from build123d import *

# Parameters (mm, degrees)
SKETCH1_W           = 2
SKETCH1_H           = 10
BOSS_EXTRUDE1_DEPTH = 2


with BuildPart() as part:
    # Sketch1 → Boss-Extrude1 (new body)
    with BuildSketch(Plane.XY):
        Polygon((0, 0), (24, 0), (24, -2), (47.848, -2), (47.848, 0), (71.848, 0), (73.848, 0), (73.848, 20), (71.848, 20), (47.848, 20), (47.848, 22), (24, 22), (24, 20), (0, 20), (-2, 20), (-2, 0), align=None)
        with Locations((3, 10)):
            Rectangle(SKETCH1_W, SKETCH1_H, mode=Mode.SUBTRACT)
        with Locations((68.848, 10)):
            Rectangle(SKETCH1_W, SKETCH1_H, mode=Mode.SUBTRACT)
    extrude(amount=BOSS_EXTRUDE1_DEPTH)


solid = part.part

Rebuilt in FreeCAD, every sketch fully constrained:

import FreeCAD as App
import Part
import Sketcher
from FreeCAD import Vector
Q = App.Units.Quantity

doc = App.newDocument("Part")
body = doc.addObject("PartDesign::Body", "Body")

sketch1 = body.newObject("Sketcher::SketchObject", "Sketch")
sketch1.AttachmentSupport = (doc.getObject("XY_Plane"), [""])
sketch1.MapMode = "FlatFace"
sketch1.addGeometry([
    Part.LineSegment(Vector(24, 0, 0), Vector(24, -2, 0)),
    Part.LineSegment(Vector(24, -2, 0), Vector(47.8, -2, 0)),
    Part.LineSegment(Vector(47.8, -2, 0), Vector(47.8, 0, 0)),
    Part.LineSegment(Vector(47.8, 0, 0), Vector(73.8, 0, 0)),
    Part.LineSegment(Vector(73.8, 0, 0), Vector(73.8, 20, 0)),
    Part.LineSegment(Vector(73.8, 20, 0), Vector(47.8, 20, 0)),
    Part.LineSegment(Vector(47.8, 20, 0), Vector(47.8, 22, 0)),
    Part.LineSegment(Vector(47.8, 22, 0), Vector(24, 22, 0)),
    Part.LineSegment(Vector(24, 22, 0), Vector(24, 20, 0)),
    Part.LineSegment(Vector(24, 20, 0), Vector(-2, 20, 0)),
    Part.LineSegment(Vector(-2, 20, 0), Vector(-2, 0, 0)),
    Part.LineSegment(Vector(-2, 0, 0), Vector(24, 0, 0)),
    Part.LineSegment(Vector(4, 5, 0), Vector(2, 5, 0)),
    Part.LineSegment(Vector(2, 5, 0), Vector(2, 15, 0)),
    Part.LineSegment(Vector(2, 15, 0), Vector(4, 15, 0)),
    Part.LineSegment(Vector(4, 15, 0), Vector(4, 5, 0)),
    Part.LineSegment(Vector(69.8, 5, 0), Vector(67.8, 5, 0)),
    Part.LineSegment(Vector(67.8, 5, 0), Vector(67.8, 15, 0)),
    Part.LineSegment(Vector(67.8, 15, 0), Vector(69.8, 15, 0)),
    Part.LineSegment(Vector(69.8, 15, 0), Vector(69.8, 5, 0)),
], False)
sketch1.addConstraint([
    Sketcher.Constraint("Coincident", 0, 2, 1, 1),
    Sketcher.Constraint("Coincident", 1, 2, 2, 1),
    Sketcher.Constraint("Coincident", 2, 2, 3, 1),
    Sketcher.Constraint("Coincident", 3, 2, 4, 1),
    Sketcher.Constraint("Coincident", 4, 2, 5, 1),
    Sketcher.Constraint("Coincident", 5, 2, 6, 1),
    Sketcher.Constraint("Coincident", 6, 2, 7, 1),
    Sketcher.Constraint("Coincident", 7, 2, 8, 1),
    Sketcher.Constraint("Coincident", 8, 2, 9, 1),
    Sketcher.Constraint("Coincident", 9, 2, 10, 1),
    Sketcher.Constraint("Coincident", 10, 2, 11, 1),
    Sketcher.Constraint("Coincident", 11, 2, 0, 1),
    Sketcher.Constraint("Coincident", 12, 2, 13, 1),
    Sketcher.Constraint("Coincident", 13, 2, 14, 1),
    Sketcher.Constraint("Coincident", 14, 2, 15, 1),
    Sketcher.Constraint("Coincident", 15, 2, 12, 1),
    Sketcher.Constraint("Coincident", 16, 2, 17, 1),
    Sketcher.Constraint("Coincident", 17, 2, 18, 1),
    Sketcher.Constraint("Coincident", 18, 2, 19, 1),
    Sketcher.Constraint("Coincident", 19, 2, 16, 1),
    Sketcher.Constraint("Vertical", 0),
    Sketcher.Constraint("Horizontal", 1),
    Sketcher.Constraint("Vertical", 2),
    Sketcher.Constraint("Horizontal", 3),
    Sketcher.Constraint("Vertical", 4),
    Sketcher.Constraint("Horizontal", 5),
    Sketcher.Constraint("Vertical", 6),
    Sketcher.Constraint("Horizontal", 7),
    Sketcher.Constraint("Vertical", 8),
    Sketcher.Constraint("Horizontal", 9),
    Sketcher.Constraint("Vertical", 10),
    Sketcher.Constraint("Horizontal", 11),
    Sketcher.Constraint("Horizontal", 12),
    Sketcher.Constraint("Vertical", 13),
    Sketcher.Constraint("Horizontal", 14),
    Sketcher.Constraint("Vertical", 15),
    Sketcher.Constraint("Horizontal", 16),
    Sketcher.Constraint("Vertical", 17),
    Sketcher.Constraint("Horizontal", 18),
    Sketcher.Constraint("Vertical", 19),
    Sketcher.Constraint("PointOnObject", 2, 2, -1),
    Sketcher.Constraint("PointOnObject", 10, 2, -1),
    Sketcher.Constraint("Horizontal", 5, 2, 8, 2),
    Sketcher.Constraint("Horizontal", 15, 2, 16, 2),
    Sketcher.Constraint("Horizontal", 14, 2, 17, 2),
    Sketcher.Constraint("Vertical", 2, 2, 5, 2),
    Sketcher.Constraint("Vertical", 0, 2, 7, 2),
    Sketcher.Constraint("Equal", 5, 9),
    Sketcher.Constraint("Equal", 14, 16),
    Sketcher.Constraint("Equal", 18, 0),
    Sketcher.Constraint("Equal", 2, 6),
    Sketcher.Constraint("DistanceX", 3, 1, 3, 2, Q("26 mm")),
    Sketcher.Constraint("DistanceX", 12, 2, 12, 1, Q("2 mm")),
    Sketcher.Constraint("DistanceY", 4, 1, 4, 2, Q("20 mm")),
    Sketcher.Constraint("DistanceY", 13, 1, 13, 2, Q("10 mm")),
    Sketcher.Constraint("DistanceX", -1, 1, 0, 2, Q("24 mm")),
    Sketcher.Constraint("DistanceX", -1, 1, 12, 2, Q("2 mm")),
    Sketcher.Constraint("DistanceY", -1, 1, 12, 2, Q("5 mm")),
    Sketcher.Constraint("DistanceX", 16, 2, 3, 2, Q("6 mm")),
    Sketcher.Constraint("DistanceX", 1, 1, 1, 2, Q("23.848 mm")),
])
pad1 = body.newObject("PartDesign::Pad", "Pad")
pad1.Profile = sketch1
pad1.Length = 2

doc.recompute()
